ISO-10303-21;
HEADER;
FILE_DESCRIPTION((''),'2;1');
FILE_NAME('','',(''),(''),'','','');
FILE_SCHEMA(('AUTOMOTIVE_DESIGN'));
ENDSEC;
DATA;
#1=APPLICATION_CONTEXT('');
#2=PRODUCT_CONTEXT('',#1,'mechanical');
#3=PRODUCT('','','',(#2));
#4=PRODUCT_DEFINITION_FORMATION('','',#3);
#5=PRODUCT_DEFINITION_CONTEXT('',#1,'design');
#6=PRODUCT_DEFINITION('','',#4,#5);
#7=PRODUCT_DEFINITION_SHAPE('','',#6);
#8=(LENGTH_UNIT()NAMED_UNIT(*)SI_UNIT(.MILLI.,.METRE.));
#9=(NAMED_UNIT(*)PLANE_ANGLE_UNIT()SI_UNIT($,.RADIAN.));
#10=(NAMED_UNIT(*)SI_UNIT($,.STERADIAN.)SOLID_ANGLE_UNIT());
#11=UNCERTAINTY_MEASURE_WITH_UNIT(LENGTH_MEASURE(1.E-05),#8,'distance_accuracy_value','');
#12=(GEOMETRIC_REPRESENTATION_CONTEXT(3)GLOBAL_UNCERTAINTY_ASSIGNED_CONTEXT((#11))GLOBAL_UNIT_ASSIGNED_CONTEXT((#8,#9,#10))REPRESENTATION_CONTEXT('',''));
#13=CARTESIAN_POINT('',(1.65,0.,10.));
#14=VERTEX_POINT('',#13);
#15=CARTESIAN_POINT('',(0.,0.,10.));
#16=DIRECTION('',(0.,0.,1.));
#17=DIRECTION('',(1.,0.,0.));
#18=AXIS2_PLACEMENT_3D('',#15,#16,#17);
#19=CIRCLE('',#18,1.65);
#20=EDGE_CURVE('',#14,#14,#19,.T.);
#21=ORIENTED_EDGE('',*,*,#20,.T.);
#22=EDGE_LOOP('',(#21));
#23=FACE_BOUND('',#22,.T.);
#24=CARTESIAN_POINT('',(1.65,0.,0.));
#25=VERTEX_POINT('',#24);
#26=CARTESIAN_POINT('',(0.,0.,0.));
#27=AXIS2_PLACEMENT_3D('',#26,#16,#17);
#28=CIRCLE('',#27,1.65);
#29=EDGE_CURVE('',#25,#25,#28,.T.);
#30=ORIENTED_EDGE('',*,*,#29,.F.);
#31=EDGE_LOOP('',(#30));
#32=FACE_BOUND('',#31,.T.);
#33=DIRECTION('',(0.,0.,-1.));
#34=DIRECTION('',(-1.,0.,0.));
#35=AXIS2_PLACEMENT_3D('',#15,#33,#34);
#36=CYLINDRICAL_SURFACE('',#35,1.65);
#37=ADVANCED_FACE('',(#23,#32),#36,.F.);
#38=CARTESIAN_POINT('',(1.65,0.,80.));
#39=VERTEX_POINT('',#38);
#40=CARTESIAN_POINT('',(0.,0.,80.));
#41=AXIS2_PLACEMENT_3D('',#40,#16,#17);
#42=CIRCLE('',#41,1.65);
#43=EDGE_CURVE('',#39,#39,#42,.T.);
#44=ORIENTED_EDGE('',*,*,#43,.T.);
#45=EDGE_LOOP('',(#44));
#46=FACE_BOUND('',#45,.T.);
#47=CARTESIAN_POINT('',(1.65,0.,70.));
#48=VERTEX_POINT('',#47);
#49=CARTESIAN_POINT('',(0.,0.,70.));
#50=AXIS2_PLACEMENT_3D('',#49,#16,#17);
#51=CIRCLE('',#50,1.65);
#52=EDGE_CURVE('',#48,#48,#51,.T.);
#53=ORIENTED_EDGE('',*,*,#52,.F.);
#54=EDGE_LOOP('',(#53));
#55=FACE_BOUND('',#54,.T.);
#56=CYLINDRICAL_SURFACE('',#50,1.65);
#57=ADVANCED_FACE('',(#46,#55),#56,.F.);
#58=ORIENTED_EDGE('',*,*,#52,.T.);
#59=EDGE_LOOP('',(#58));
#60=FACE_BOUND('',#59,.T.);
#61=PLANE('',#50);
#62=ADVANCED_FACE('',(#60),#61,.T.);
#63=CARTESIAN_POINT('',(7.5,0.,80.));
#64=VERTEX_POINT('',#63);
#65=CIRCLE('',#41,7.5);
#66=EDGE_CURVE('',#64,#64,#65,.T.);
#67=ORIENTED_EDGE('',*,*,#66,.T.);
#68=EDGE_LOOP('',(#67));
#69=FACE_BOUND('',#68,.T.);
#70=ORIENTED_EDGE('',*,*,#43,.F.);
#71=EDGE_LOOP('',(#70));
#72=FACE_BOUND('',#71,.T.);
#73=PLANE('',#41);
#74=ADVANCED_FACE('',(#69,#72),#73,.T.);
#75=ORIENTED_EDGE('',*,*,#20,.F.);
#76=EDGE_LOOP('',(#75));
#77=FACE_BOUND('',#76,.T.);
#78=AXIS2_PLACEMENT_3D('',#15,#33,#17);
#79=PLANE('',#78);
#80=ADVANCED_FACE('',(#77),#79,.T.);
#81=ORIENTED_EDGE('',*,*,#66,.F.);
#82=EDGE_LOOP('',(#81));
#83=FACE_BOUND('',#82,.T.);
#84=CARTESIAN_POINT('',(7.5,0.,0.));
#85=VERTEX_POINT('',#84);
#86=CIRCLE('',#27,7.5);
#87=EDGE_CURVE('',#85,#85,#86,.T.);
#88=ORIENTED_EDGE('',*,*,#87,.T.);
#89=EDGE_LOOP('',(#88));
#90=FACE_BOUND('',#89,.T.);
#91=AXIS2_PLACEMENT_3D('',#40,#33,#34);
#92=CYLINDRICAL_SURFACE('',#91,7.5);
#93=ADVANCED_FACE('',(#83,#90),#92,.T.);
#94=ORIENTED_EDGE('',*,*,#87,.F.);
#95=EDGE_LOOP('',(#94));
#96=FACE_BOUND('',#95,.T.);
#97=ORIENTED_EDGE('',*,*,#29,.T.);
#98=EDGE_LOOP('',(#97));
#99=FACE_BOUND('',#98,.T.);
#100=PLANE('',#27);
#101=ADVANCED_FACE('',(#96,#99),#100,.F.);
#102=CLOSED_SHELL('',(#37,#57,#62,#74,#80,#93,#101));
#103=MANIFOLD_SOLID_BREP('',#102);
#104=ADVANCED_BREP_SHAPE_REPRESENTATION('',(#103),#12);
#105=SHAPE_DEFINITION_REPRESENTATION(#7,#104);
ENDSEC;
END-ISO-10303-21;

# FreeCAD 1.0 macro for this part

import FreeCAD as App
import Part
import Sketcher

V = App.Vector
Q = App.Units.Quantity

doc = App.newDocument("Part")
body = doc.addObject("PartDesign::Body", "Body")

# Sketch on XY plane
sketch1 = body.newObject("Sketcher::SketchObject", "Sketch")
sketch1.AttachmentSupport = (doc.getObject("XY_Plane"), [""])
sketch1.MapMode = "FlatFace"
sketch1.addGeometry(Part.Circle(V(0, 0, 0), V(0, 0, 1), 8), False)
sketch1.addConstraint(Sketcher.Constraint("Coincident", 0, 3, -1, 1))
sketch1.addConstraint(Sketcher.Constraint("Diameter", 0, Q("15 mm")))
pad1 = body.newObject("PartDesign::Pad", "Pad")
pad1.Profile = sketch1
pad1.Length = 80

# Sketch on XY plane
sketch2 = body.newObject("Sketcher::SketchObject", "Sketch001")
sketch2.AttachmentSupport = (doc.getObject("XY_Plane"), [""])
sketch2.MapMode = "FlatFace"
sketch2.AttachmentOffset = App.Placement(V(0, 0, 80), App.Rotation())
sketch2.addGeometry(Part.Circle(V(0, 0, 0), V(0, 0, 1), 1.6), False)
sketch2.addConstraint(Sketcher.Constraint("Coincident", 0, 3, -1, 1))
sketch2.addConstraint(Sketcher.Constraint("Diameter", 0, Q("3.3 mm")))
pocket1 = body.newObject("PartDesign::Pocket", "Pocket")
pocket1.Profile = sketch2
pocket1.Length = 10
doc.recompute()

datumplane = body.newObject("PartDesign::Plane", "DatumPlane")
datumplane.AttachmentSupport = (doc.getObject("XY_Plane"), [""])
datumplane.MapMode = "FlatFace"
datumplane.AttachmentOffset = App.Placement(V(0, 0, 40), App.Rotation())
mirrored = body.newObject("PartDesign::Mirrored", "Mirrored")
mirrored.Originals = [pocket1]
mirrored.MirrorPlane = (datumplane, [""])
body.Tip = mirrored

doc.recompute()
